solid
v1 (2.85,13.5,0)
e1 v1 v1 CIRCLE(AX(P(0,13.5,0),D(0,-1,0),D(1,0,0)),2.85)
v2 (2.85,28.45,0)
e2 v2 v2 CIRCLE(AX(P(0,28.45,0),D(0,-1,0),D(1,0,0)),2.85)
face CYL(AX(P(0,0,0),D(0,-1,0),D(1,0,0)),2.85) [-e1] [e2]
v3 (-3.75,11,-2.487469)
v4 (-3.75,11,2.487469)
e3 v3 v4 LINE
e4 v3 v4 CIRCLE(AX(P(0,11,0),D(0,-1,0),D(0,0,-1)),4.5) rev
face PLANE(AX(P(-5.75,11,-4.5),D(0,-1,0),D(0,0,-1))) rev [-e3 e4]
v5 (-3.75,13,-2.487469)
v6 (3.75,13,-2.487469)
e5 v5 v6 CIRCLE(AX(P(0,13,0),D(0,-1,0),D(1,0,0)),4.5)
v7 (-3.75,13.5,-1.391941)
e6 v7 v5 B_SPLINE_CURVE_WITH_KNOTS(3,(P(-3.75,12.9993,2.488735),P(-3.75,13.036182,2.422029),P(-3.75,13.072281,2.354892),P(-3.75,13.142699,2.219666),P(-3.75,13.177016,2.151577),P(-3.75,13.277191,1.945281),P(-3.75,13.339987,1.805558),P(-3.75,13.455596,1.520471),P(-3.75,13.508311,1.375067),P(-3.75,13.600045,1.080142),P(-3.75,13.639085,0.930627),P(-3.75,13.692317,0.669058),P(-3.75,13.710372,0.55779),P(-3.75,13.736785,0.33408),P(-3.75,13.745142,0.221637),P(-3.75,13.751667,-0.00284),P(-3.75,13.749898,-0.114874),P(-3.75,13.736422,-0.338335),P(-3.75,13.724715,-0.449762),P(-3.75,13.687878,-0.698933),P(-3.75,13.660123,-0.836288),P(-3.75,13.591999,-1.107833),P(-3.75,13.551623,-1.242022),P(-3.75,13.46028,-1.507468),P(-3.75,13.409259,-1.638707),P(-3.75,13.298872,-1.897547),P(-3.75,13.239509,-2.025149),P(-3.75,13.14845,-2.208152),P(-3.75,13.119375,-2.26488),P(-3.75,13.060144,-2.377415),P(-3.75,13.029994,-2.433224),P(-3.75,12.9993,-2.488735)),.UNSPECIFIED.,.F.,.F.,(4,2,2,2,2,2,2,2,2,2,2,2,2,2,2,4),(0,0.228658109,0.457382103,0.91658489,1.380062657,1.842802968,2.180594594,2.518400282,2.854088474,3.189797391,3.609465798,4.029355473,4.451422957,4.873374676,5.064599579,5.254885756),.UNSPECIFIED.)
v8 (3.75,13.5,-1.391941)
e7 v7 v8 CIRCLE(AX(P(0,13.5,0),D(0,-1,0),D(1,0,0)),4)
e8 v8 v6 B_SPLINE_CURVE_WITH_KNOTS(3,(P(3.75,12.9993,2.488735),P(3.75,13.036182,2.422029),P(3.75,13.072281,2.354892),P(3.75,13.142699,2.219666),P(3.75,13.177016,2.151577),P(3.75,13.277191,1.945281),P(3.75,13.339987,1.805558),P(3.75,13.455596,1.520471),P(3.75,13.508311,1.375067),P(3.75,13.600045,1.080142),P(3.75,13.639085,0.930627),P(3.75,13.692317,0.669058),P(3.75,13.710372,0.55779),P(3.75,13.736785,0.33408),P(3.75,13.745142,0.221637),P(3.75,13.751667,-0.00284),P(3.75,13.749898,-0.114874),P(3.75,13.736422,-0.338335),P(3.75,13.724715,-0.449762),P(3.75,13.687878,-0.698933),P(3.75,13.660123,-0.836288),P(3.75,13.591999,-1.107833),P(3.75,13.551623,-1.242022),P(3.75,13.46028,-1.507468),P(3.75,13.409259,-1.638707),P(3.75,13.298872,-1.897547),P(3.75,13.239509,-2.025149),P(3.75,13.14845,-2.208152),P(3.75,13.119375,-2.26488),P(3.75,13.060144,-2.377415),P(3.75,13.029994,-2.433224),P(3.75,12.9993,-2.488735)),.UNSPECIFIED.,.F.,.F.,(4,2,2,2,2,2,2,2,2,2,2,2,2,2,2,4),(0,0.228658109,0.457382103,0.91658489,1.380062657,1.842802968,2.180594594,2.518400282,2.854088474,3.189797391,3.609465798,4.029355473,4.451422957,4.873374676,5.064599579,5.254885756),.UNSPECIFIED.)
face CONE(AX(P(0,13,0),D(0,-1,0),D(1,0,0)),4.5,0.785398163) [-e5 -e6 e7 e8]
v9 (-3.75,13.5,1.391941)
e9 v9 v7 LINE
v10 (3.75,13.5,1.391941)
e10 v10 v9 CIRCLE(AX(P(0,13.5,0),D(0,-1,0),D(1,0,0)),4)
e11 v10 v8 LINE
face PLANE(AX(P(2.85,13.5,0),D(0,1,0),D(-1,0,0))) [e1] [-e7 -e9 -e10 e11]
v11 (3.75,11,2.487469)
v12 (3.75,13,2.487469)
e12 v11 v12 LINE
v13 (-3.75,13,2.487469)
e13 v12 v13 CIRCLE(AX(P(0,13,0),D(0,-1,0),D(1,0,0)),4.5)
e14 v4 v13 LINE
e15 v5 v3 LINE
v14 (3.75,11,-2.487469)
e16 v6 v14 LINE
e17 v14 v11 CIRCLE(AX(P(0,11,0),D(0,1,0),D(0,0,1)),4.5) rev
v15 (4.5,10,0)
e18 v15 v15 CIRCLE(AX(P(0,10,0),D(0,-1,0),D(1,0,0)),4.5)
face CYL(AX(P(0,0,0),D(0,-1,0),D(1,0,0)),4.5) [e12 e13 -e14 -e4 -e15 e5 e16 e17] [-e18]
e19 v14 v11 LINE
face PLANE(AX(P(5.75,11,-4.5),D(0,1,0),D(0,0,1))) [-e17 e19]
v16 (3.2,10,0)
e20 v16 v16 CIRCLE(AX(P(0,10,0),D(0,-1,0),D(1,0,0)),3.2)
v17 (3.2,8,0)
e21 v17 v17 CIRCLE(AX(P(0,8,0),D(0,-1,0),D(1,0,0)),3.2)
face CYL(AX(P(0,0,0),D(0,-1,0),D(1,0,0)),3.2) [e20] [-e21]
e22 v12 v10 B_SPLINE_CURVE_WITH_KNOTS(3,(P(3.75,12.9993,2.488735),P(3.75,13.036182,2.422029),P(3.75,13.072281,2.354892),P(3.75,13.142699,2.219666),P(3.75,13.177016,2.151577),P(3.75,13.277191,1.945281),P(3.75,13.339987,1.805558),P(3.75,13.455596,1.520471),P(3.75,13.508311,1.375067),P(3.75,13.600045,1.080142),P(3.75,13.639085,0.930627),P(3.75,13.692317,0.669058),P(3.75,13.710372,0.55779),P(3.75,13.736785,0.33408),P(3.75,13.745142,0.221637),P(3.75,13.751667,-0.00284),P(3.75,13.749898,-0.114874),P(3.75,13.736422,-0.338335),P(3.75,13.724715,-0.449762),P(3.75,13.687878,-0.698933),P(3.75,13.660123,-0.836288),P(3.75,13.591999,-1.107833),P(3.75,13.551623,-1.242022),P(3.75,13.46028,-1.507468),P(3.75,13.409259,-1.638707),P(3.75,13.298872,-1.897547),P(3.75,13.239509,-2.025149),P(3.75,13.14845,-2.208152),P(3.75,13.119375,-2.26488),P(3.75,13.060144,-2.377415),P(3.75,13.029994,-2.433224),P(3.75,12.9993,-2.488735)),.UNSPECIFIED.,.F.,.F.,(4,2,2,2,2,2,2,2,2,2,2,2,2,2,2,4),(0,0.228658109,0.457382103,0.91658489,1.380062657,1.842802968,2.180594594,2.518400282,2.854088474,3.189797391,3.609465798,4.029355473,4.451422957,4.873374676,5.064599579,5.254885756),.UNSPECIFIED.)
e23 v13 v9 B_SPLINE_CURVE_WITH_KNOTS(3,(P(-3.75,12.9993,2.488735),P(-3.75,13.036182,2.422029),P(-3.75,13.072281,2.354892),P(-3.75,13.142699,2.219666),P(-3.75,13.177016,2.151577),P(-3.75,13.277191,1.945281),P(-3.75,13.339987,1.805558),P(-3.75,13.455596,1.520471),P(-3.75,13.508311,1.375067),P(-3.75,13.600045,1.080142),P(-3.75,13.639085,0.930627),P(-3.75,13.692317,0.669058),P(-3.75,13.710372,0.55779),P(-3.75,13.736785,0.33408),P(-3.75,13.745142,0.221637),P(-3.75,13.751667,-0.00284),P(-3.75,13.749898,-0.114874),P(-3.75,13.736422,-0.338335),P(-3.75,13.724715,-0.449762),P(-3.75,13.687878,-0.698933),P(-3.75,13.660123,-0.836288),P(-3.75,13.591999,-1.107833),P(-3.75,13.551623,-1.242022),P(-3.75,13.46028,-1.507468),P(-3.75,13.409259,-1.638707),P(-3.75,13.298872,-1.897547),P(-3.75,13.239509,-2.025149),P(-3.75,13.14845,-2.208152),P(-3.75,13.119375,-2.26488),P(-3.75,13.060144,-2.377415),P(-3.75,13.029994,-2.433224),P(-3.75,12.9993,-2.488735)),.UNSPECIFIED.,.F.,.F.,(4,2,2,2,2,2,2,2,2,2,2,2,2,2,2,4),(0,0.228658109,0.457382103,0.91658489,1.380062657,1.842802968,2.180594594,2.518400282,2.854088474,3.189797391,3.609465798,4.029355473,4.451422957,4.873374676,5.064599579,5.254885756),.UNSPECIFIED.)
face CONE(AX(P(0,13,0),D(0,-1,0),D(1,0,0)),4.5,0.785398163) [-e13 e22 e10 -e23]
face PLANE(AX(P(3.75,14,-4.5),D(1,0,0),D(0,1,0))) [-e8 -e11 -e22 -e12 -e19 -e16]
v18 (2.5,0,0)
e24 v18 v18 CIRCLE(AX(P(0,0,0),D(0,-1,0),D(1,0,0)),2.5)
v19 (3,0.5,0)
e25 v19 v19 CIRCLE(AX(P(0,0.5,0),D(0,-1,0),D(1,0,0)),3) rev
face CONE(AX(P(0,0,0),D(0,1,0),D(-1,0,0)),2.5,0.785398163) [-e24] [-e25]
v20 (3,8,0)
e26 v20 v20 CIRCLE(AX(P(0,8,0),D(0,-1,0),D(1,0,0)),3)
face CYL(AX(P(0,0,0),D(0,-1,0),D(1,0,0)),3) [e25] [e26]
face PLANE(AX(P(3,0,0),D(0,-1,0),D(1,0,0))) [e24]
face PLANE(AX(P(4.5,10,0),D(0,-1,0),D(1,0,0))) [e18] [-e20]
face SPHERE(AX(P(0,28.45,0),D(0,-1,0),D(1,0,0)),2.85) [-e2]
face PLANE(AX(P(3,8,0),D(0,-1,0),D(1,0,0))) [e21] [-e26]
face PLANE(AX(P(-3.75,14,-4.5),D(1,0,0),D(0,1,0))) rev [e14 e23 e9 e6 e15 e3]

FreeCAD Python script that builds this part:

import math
import FreeCAD as App
import Part
import Sketcher
Q = App.Units.Quantity


def edges_at(feature, points):
    """Names of the edges that pass closest to the given points."""
    edges = feature.Shape.Edges
    near = lambda p: min(range(len(edges)), key=lambda i: edges[i].distToShape(Part.Vertex(*p))[0])
    return sorted({f"Edge{near(p) + 1}" for p in points})

doc = App.newDocument("Part")
params = doc.addObject("Spreadsheet::Sheet", "Params")
for row, (alias, value) in enumerate([
    ("sketch1_width", "3 mm"),
    ("sketch1_height", "8 mm"),
    ("sketch1_height2", "2 mm"),
    ("sketch1_radius", "2.85 mm"),
    ("sketch1_width2", "0.2 mm"),
    ("revolution_angle", "360 deg"),
    ("sketch2_width", "2 mm"),
    ("sketch2_height", "3 mm"),
    ("pocket1_length", "65.880827 mm"),
    ("chamfer_size", "0.5 mm"),
], start=1):
    params.set(f"A{row}", alias)
    params.set(f"B{row}", "=" + value)
    params.setAlias(f"B{row}", alias)

body = doc.addObject("PartDesign::Body", "Body")

sketch1 = doc.addObject("Sketcher::SketchObject", "Sketch")
body.addObject(sketch1)
sketch1.AttachmentSupport = (doc.XY_Plane, [""])
sketch1.MapMode = "FlatFace"
sketch1.addGeometry(Part.LineSegment(App.Vector(0, 31.3, 0), App.Vector(0, 0, 0)), False)
sketch1.addGeometry(Part.LineSegment(App.Vector(0, 0, 0), App.Vector(3, 0, 0)), False)
sketch1.addGeometry(Part.LineSegment(App.Vector(3, 0, 0), App.Vector(3, 8, 0)), False)
sketch1.addGeometry(Part.LineSegment(App.Vector(3, 8, 0), App.Vector(3.2, 8, 0)), False)
sketch1.addGeometry(Part.LineSegment(App.Vector(3.2, 8, 0), App.Vector(3.2, 10, 0)), False)
sketch1.addGeometry(Part.LineSegment(App.Vector(3.2, 10, 0), App.Vector(4.5, 10, 0)), False)
sketch1.addGeometry(Part.LineSegment(App.Vector(4.5, 10, 0), App.Vector(4.5, 13, 0)), False)
sketch1.addGeometry(Part.LineSegment(App.Vector(4.5, 13, 0), App.Vector(4, 13.5, 0)), False)
sketch1.addGeometry(Part.LineSegment(App.Vector(4, 13.5, 0), App.Vector(2.85, 13.5, 0)), False)
sketch1.addGeometry(Part.LineSegment(App.Vector(2.85, 13.5, 0), App.Vector(2.85, 28.45, 0)), False)
sketch1.addGeometry(Part.ArcOfCircle(Part.Circle(App.Vector(0, 28.45, 0), App.Vector(0, 0, 1), 2.85), math.radians(0), math.radians(90)), False)
sketch1.addConstraint(Sketcher.Constraint("Coincident", 0, 2, 1, 1))
sketch1.addConstraint(Sketcher.Constraint("Coincident", 1, 2, 2, 1))
sketch1.addConstraint(Sketcher.Constraint("Coincident", 2, 2, 3, 1))
sketch1.addConstraint(Sketcher.Constraint("Coincident", 3, 2, 4, 1))
sketch1.addConstraint(Sketcher.Constraint("Coincident", 4, 2, 5, 1))
sketch1.addConstraint(Sketcher.Constraint("Coincident", 5, 2, 6, 1))
sketch1.addConstraint(Sketcher.Constraint("Coincident", 6, 2, 7, 1))
sketch1.addConstraint(Sketcher.Constraint("Coincident", 7, 2, 8, 1))
sketch1.addConstraint(Sketcher.Constraint("Coincident", 8, 2, 9, 1))
sketch1.addConstraint(Sketcher.Constraint("Tangent", 9, 2, 10, 1))
sketch1.addConstraint(Sketcher.Constraint("Coincident", 10, 2, 0, 1))
sketch1.addConstraint(Sketcher.Constraint("Vertical", 0))
sketch1.addConstraint(Sketcher.Constraint("Horizontal", 1))
sketch1.addConstraint(Sketcher.Constraint("Vertical", 2))
sketch1.addConstraint(Sketcher.Constraint("Horizontal", 3))
sketch1.addConstraint(Sketcher.Constraint("Vertical", 4))
sketch1.addConstraint(Sketcher.Constraint("Horizontal", 5))
sketch1.addConstraint(Sketcher.Constraint("Vertical", 6))
sketch1.addConstraint(Sketcher.Constraint("Horizontal", 8))
sketch1.addConstraint(Sketcher.Constraint("Vertical", 9))
sketch1.addConstraint(Sketcher.Constraint("Coincident", 0, 2, -1, 1))
sketch1.addConstraint(Sketcher.Constraint("PointOnObject", 10, 3, -2))
sketch1.addConstraint(Sketcher.Constraint("Equal", 1, 6))
sketch1.addConstraint(Sketcher.Constraint("DistanceX", 1, 1, 1, 2, 3.0))
sketch1.addConstraint(Sketcher.Constraint("DistanceY", 2, 1, 2, 2, 8.0))
sketch1.addConstraint(Sketcher.Constraint("DistanceY", 4, 1, 4, 2, 2.0))
sketch1.addConstraint(Sketcher.Constraint("Angle", 7, Q("135 deg")))
sketch1.addConstraint(Sketcher.Constraint("Radius", 10, 2.85))
sketch1.addConstraint(Sketcher.Constraint("DistanceX", 3, 1, 3, 2, 0.2))
sketch1.addConstraint(Sketcher.Constraint("DistanceX", 5, 1, 5, 2, 1.3))
sketch1.addConstraint(Sketcher.Constraint("DistanceY", 0, 2, 0, 1, 31.3))
sketch1.addConstraint(Sketcher.Constraint("DistanceX", -1, 1, 7, 2, 4.0))
sketch1.setExpression("Constraints[23]", "Params.sketch1_width")
sketch1.setExpression("Constraints[24]", "Params.sketch1_height")
sketch1.setExpression("Constraints[25]", "Params.sketch1_height2")
sketch1.setExpression("Constraints[27]", "Params.sketch1_radius")
sketch1.setExpression("Constraints[28]", "Params.sketch1_width2")
revolution = doc.addObject("PartDesign::Revolution", "Revolution")
body.addObject(revolution)
revolution.Profile = sketch1
revolution.ReferenceAxis = (sketch1, ["V_Axis"])
revolution.setExpression("Angle", "Params.revolution_angle")

sketch2 = doc.addObject("Sketcher::SketchObject", "Sketch001")
body.addObject(sketch2)
sketch2.AttachmentSupport = (doc.XY_Plane, [""])
sketch2.MapMode = "FlatFace"
sketch2.addGeometry(Part.LineSegment(App.Vector(-5.8, 14, 0), App.Vector(-5.8, 11, 0)), False)
sketch2.addGeometry(Part.LineSegment(App.Vector(-5.8, 11, 0), App.Vector(-3.8, 11, 0)), False)
sketch2.addGeometry(Part.LineSegment(App.Vector(-3.8, 11, 0), App.Vector(-3.8, 14, 0)), False)
sketch2.addGeometry(Part.LineSegment(App.Vector(-3.8, 14, 0), App.Vector(-5.8, 14, 0)), False)
sketch2.addConstraint(Sketcher.Constraint("Coincident", 0, 2, 1, 1))
sketch2.addConstraint(Sketcher.Constraint("Coincident", 1, 2, 2, 1))
sketch2.addConstraint(Sketcher.Constraint("Coincident", 2, 2, 3, 1))
sketch2.addConstraint(Sketcher.Constraint("Coincident", 3, 2, 0, 1))
sketch2.addConstraint(Sketcher.Constraint("Vertical", 0))
sketch2.addConstraint(Sketcher.Constraint("Horizontal", 1))
sketch2.addConstraint(Sketcher.Constraint("Vertical", 2))
sketch2.addConstraint(Sketcher.Constraint("Horizontal", 3))
sketch2.addConstraint(Sketcher.Constraint("DistanceX", 1, 1, 1, 2, 2.0))
sketch2.addConstraint(Sketcher.Constraint("DistanceY", 0, 2, 0, 1, 3.0))
sketch2.addConstraint(Sketcher.Constraint("DistanceY", -1, 1, 0, 2, 11.0))
sketch2.addConstraint(Sketcher.Constraint("DistanceX", 0, 2, -1, 1, 5.75))
sketch2.setExpression("Constraints[8]", "Params.sketch2_width")
sketch2.setExpression("Constraints[9]", "Params.sketch2_height")
pocket1 = doc.addObject("PartDesign::Pocket", "Pocket")
body.addObject(pocket1)
pocket1.Profile = sketch2
pocket1.setExpression("Length", "Params.pocket1_length")
pocket1.Midplane = True
doc.recompute()

mirrored = doc.addObject("PartDesign::Mirrored", "Mirrored")
body.addObject(mirrored)
mirrored.Originals = [pocket1]
mirrored.MirrorPlane = (doc.YZ_Plane, [""])
body.Tip = mirrored
doc.recompute()

chamfer = doc.addObject("PartDesign::Chamfer", "Chamfer")
body.addObject(chamfer)
chamfer.Base = (mirrored, edges_at(mirrored, [(-3, 0, 0)]))
chamfer.setExpression("Size", "Params.chamfer_size")

doc.recompute()
